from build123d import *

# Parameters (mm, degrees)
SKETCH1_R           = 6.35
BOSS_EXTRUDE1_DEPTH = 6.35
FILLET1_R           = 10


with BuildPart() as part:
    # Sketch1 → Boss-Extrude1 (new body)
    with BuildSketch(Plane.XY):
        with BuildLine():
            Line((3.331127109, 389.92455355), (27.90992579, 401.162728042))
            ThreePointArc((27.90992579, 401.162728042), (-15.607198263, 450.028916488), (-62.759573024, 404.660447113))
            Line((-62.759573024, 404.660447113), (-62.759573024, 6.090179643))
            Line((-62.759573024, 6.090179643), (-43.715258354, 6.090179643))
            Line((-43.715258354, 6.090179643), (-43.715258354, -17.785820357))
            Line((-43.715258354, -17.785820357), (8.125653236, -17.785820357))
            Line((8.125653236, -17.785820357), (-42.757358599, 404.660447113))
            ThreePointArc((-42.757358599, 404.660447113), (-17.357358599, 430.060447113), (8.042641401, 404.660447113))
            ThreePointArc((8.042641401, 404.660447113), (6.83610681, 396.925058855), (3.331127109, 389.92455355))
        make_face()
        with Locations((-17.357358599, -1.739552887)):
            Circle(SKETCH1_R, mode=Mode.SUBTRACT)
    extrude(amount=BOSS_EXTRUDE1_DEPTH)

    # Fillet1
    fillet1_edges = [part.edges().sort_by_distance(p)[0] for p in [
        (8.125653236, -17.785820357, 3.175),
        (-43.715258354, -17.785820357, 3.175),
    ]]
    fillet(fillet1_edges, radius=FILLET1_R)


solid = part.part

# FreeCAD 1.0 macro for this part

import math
import FreeCAD as App
import Part
import Sketcher

V = App.Vector
Q = App.Units.Quantity


def edges_at(feature, points):
    """Names of the edges that pass closest to the given points."""
    edges = feature.Shape.Edges
    near = lambda p: min(range(len(edges)), key=lambda i: edges[i].distToShape(Part.Vertex(*p))[0])
    return sorted({f"Edge{near(p) + 1}" for p in points})

doc = App.newDocument("Part")
body = doc.addObject("PartDesign::Body", "Body")

sketch1 = body.newObject("Sketcher::SketchObject", "Sketch")
sketch1.AttachmentSupport = (doc.getObject("XY_Plane"), [""])
sketch1.MapMode = "FlatFace"
sketch1.addGeometry([
    Part.LineSegment(V(3, 390, 0), V(28, 401, 0)),
    Part.ArcOfCircle(Part.Circle(V(-17, 405, 0), V(0, 0, 1), 45), math.radians(-4), math.radians(180)),
    Part.LineSegment(V(-63, 405, 0), V(-63, 6, 0)),
    Part.LineSegment(V(-63, 6, 0), V(-44, 6, 0)),
    Part.LineSegment(V(-44, 6, 0), V(-44, -18, 0)),
    Part.LineSegment(V(-44, -18, 0), V(8, -18, 0)),
    Part.LineSegment(V(8, -18, 0), V(-43, 405, 0)),
    Part.ArcOfCircle(Part.Circle(V(-17, 405, 0), V(0, 0, 1), 25), math.radians(0), math.radians(180)),
    Part.ArcOfCircle(Part.Circle(V(-17, 405, 0), V(0, 0, 1), 25), math.radians(-35), math.radians(0)),
    Part.Circle(V(-17, -2, 0), V(0, 0, 1), 6),
], False)
sketch1.addConstraint([
    Sketcher.Constraint("Coincident", 0, 2, 1, 1),
    Sketcher.Constraint("Tangent", 1, 2, 2, 1),
    Sketcher.Constraint("Coincident", 2, 2, 3, 1),
    Sketcher.Constraint("Coincident", 3, 2, 4, 1),
    Sketcher.Constraint("Coincident", 4, 2, 5, 1),
    Sketcher.Constraint("Coincident", 5, 2, 6, 1),
    Sketcher.Constraint("Coincident", 6, 2, 7, 2),
    Sketcher.Constraint("Tangent", 7, 1, 8, 2),
    Sketcher.Constraint("Coincident", 8, 1, 0, 1),
    Sketcher.Constraint("Vertical", 2),
    Sketcher.Constraint("Horizontal", 3),
    Sketcher.Constraint("Vertical", 4),
    Sketcher.Constraint("Horizontal", 5),
    Sketcher.Constraint("Coincident", 7, 3, 1, 3),
    Sketcher.Constraint("Equal", 7, 8),
    Sketcher.Constraint("Horizontal", 1, 2, 6, 2),
    Sketcher.Constraint("Horizontal", 6, 2, 7, 1),
    Sketcher.Constraint("Vertical", 8, 3, 9, 3),
    Sketcher.Constraint("Radius", 7, Q("1 in")),
    Sketcher.Constraint("Diameter", 9, Q("0.5 in")),
    Sketcher.Constraint("DistanceY", 9, 3, 1, 3, Q("16 in")),
    Sketcher.Constraint("DistanceY", 4, 2, 4, 1, Q("0.94 in")),
    Sketcher.Constraint("Radius", 1, 45.402214),
    Sketcher.Constraint("DistanceX", 5, 1, 5, 2, 51.840912),
    Sketcher.Constraint("DistanceX", 1, 2, 0, 2, 90.669499),
    Sketcher.Constraint("DistanceX", 3, 2, 9, 3, 26.3579),
    Sketcher.Constraint("DistanceX", 8, 1, 0, 2, 24.578799),
    Sketcher.Constraint("DistanceY", 2, 2, 2, 1, 398.570267),
    Sketcher.Constraint("DistanceX", 1, 3, -1, 1, 17.357359),
    Sketcher.Constraint("DistanceY", -1, 1, 0, 2, 401.162728),
])
pad1 = body.newObject("PartDesign::Pad", "Pad")
pad1.Profile = sketch1
pad1.Length = Q("0.25 in")
doc.recompute()

fillet = body.newObject("PartDesign::Fillet", "Fillet")
fillet.Base = (pad1, edges_at(pad1, [(8.126, -17.786, 3.175), (-43.715, -17.786, 3.175)]))
fillet.Radius = 10

doc.recompute()
